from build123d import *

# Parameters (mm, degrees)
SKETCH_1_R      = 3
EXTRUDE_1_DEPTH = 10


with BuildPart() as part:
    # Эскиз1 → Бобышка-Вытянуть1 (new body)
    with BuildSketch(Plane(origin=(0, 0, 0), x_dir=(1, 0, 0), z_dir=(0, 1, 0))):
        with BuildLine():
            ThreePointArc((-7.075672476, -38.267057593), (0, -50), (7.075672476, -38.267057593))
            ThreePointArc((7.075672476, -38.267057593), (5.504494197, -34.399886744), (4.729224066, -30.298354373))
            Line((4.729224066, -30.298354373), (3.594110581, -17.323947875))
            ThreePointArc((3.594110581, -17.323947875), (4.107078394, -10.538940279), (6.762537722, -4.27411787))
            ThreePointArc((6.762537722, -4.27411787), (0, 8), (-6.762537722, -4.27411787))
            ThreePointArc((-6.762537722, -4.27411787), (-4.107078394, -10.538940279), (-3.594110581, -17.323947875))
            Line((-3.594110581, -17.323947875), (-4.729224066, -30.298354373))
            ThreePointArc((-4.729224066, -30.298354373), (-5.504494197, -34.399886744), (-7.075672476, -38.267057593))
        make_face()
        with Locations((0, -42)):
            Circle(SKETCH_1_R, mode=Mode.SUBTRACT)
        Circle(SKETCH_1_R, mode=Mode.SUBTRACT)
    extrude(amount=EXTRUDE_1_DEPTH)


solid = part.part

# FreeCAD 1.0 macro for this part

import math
import FreeCAD as App
import Part
import Sketcher
Q = App.Units.Quantity

doc = App.newDocument("Part")
body = doc.addObject("PartDesign::Body", "Body")

sketch1 = body.newObject("Sketcher::SketchObject", "Sketch")
sketch1.AttachmentSupport = (doc.getObject("XZ_Plane"), [""])
sketch1.MapMode = "FlatFace"
sketch1.addGeometry([
    Part.ArcOfCircle(Part.Circle(App.Vector(0, 42, 0), App.Vector(0, 0, 1), 8), math.radians(-28), math.radians(208)),
    Part.ArcOfCircle(Part.Circle(App.Vector(25.6, 28.5, 0), App.Vector(0, 0, 1), 21), math.radians(152), math.radians(175)),
    Part.LineSegment(App.Vector(4.7, 30.3, 0), App.Vector(3.6, 17.3, 0)),
    Part.ArcOfCircle(Part.Circle(App.Vector(24.5, 15.5, 0), App.Vector(0, 0, 1), 21), math.radians(175), math.radians(212)),
    Part.ArcOfCircle(Part.Circle(App.Vector(0, 0, 0), App.Vector(0, 0, 1), 8), math.radians(148), math.radians(392)),
    Part.ArcOfCircle(Part.Circle(App.Vector(-24.5, 15.5, 0), App.Vector(0, 0, 1), 21), math.radians(-32), math.radians(5)),
    Part.LineSegment(App.Vector(-3.6, 17.3, 0), App.Vector(-4.7, 30.3, 0)),
    Part.ArcOfCircle(Part.Circle(App.Vector(-25.6, 28.5, 0), App.Vector(0, 0, 1), 21), math.radians(5), math.radians(28)),
    Part.Circle(App.Vector(0, 42, 0), App.Vector(0, 0, 1), 3),
    Part.Circle(App.Vector(0, 0, 0), App.Vector(0, 0, 1), 3),
], False)
sketch1.addConstraint([
    Sketcher.Constraint("Tangent", 0, 1, 1, 1),
    Sketcher.Constraint("Tangent", 1, 2, 2, 1),
    Sketcher.Constraint("Tangent", 2, 2, 3, 1),
    Sketcher.Constraint("Tangent", 3, 2, 4, 2),
    Sketcher.Constraint("Tangent", 4, 1, 5, 1),
    Sketcher.Constraint("Tangent", 5, 2, 6, 1),
    Sketcher.Constraint("Tangent", 6, 2, 7, 1),
    Sketcher.Constraint("Tangent", 7, 2, 0, 2),
    Sketcher.Constraint("Coincident", 4, 3, -1, 1),
    Sketcher.Constraint("Coincident", 9, 3, -1, 1),
    Sketcher.Constraint("Coincident", 8, 3, 0, 3),
    Sketcher.Constraint("Equal", 1, 3),
    Sketcher.Constraint("Equal", 0, 4),
    Sketcher.Constraint("Equal", 3, 5),
    Sketcher.Constraint("Equal", 5, 7),
    Sketcher.Constraint("Equal", 8, 9),
    Sketcher.Constraint("Symmetric", 1, 3, 7, 3, -2),
    Sketcher.Constraint("Horizontal", 3, 3, 5, 3),
    Sketcher.Constraint("Diameter", 8, 6.0),
    Sketcher.Constraint("Radius", 0, 8.0),
    Sketcher.Constraint("Radius", 1, 21.0),
    Sketcher.Constraint("Angle", 2, Q("-95 deg")),
    Sketcher.Constraint("DistanceY", -1, 1, 0, 3, 42.0),
    Sketcher.Constraint("DistanceX", -1, 1, 3, 3, 24.514199),
])
pad1 = body.newObject("PartDesign::Pad", "Pad")
pad1.Profile = sketch1
pad1.Length = 10
pad1.Reversed = True

doc.recompute()
